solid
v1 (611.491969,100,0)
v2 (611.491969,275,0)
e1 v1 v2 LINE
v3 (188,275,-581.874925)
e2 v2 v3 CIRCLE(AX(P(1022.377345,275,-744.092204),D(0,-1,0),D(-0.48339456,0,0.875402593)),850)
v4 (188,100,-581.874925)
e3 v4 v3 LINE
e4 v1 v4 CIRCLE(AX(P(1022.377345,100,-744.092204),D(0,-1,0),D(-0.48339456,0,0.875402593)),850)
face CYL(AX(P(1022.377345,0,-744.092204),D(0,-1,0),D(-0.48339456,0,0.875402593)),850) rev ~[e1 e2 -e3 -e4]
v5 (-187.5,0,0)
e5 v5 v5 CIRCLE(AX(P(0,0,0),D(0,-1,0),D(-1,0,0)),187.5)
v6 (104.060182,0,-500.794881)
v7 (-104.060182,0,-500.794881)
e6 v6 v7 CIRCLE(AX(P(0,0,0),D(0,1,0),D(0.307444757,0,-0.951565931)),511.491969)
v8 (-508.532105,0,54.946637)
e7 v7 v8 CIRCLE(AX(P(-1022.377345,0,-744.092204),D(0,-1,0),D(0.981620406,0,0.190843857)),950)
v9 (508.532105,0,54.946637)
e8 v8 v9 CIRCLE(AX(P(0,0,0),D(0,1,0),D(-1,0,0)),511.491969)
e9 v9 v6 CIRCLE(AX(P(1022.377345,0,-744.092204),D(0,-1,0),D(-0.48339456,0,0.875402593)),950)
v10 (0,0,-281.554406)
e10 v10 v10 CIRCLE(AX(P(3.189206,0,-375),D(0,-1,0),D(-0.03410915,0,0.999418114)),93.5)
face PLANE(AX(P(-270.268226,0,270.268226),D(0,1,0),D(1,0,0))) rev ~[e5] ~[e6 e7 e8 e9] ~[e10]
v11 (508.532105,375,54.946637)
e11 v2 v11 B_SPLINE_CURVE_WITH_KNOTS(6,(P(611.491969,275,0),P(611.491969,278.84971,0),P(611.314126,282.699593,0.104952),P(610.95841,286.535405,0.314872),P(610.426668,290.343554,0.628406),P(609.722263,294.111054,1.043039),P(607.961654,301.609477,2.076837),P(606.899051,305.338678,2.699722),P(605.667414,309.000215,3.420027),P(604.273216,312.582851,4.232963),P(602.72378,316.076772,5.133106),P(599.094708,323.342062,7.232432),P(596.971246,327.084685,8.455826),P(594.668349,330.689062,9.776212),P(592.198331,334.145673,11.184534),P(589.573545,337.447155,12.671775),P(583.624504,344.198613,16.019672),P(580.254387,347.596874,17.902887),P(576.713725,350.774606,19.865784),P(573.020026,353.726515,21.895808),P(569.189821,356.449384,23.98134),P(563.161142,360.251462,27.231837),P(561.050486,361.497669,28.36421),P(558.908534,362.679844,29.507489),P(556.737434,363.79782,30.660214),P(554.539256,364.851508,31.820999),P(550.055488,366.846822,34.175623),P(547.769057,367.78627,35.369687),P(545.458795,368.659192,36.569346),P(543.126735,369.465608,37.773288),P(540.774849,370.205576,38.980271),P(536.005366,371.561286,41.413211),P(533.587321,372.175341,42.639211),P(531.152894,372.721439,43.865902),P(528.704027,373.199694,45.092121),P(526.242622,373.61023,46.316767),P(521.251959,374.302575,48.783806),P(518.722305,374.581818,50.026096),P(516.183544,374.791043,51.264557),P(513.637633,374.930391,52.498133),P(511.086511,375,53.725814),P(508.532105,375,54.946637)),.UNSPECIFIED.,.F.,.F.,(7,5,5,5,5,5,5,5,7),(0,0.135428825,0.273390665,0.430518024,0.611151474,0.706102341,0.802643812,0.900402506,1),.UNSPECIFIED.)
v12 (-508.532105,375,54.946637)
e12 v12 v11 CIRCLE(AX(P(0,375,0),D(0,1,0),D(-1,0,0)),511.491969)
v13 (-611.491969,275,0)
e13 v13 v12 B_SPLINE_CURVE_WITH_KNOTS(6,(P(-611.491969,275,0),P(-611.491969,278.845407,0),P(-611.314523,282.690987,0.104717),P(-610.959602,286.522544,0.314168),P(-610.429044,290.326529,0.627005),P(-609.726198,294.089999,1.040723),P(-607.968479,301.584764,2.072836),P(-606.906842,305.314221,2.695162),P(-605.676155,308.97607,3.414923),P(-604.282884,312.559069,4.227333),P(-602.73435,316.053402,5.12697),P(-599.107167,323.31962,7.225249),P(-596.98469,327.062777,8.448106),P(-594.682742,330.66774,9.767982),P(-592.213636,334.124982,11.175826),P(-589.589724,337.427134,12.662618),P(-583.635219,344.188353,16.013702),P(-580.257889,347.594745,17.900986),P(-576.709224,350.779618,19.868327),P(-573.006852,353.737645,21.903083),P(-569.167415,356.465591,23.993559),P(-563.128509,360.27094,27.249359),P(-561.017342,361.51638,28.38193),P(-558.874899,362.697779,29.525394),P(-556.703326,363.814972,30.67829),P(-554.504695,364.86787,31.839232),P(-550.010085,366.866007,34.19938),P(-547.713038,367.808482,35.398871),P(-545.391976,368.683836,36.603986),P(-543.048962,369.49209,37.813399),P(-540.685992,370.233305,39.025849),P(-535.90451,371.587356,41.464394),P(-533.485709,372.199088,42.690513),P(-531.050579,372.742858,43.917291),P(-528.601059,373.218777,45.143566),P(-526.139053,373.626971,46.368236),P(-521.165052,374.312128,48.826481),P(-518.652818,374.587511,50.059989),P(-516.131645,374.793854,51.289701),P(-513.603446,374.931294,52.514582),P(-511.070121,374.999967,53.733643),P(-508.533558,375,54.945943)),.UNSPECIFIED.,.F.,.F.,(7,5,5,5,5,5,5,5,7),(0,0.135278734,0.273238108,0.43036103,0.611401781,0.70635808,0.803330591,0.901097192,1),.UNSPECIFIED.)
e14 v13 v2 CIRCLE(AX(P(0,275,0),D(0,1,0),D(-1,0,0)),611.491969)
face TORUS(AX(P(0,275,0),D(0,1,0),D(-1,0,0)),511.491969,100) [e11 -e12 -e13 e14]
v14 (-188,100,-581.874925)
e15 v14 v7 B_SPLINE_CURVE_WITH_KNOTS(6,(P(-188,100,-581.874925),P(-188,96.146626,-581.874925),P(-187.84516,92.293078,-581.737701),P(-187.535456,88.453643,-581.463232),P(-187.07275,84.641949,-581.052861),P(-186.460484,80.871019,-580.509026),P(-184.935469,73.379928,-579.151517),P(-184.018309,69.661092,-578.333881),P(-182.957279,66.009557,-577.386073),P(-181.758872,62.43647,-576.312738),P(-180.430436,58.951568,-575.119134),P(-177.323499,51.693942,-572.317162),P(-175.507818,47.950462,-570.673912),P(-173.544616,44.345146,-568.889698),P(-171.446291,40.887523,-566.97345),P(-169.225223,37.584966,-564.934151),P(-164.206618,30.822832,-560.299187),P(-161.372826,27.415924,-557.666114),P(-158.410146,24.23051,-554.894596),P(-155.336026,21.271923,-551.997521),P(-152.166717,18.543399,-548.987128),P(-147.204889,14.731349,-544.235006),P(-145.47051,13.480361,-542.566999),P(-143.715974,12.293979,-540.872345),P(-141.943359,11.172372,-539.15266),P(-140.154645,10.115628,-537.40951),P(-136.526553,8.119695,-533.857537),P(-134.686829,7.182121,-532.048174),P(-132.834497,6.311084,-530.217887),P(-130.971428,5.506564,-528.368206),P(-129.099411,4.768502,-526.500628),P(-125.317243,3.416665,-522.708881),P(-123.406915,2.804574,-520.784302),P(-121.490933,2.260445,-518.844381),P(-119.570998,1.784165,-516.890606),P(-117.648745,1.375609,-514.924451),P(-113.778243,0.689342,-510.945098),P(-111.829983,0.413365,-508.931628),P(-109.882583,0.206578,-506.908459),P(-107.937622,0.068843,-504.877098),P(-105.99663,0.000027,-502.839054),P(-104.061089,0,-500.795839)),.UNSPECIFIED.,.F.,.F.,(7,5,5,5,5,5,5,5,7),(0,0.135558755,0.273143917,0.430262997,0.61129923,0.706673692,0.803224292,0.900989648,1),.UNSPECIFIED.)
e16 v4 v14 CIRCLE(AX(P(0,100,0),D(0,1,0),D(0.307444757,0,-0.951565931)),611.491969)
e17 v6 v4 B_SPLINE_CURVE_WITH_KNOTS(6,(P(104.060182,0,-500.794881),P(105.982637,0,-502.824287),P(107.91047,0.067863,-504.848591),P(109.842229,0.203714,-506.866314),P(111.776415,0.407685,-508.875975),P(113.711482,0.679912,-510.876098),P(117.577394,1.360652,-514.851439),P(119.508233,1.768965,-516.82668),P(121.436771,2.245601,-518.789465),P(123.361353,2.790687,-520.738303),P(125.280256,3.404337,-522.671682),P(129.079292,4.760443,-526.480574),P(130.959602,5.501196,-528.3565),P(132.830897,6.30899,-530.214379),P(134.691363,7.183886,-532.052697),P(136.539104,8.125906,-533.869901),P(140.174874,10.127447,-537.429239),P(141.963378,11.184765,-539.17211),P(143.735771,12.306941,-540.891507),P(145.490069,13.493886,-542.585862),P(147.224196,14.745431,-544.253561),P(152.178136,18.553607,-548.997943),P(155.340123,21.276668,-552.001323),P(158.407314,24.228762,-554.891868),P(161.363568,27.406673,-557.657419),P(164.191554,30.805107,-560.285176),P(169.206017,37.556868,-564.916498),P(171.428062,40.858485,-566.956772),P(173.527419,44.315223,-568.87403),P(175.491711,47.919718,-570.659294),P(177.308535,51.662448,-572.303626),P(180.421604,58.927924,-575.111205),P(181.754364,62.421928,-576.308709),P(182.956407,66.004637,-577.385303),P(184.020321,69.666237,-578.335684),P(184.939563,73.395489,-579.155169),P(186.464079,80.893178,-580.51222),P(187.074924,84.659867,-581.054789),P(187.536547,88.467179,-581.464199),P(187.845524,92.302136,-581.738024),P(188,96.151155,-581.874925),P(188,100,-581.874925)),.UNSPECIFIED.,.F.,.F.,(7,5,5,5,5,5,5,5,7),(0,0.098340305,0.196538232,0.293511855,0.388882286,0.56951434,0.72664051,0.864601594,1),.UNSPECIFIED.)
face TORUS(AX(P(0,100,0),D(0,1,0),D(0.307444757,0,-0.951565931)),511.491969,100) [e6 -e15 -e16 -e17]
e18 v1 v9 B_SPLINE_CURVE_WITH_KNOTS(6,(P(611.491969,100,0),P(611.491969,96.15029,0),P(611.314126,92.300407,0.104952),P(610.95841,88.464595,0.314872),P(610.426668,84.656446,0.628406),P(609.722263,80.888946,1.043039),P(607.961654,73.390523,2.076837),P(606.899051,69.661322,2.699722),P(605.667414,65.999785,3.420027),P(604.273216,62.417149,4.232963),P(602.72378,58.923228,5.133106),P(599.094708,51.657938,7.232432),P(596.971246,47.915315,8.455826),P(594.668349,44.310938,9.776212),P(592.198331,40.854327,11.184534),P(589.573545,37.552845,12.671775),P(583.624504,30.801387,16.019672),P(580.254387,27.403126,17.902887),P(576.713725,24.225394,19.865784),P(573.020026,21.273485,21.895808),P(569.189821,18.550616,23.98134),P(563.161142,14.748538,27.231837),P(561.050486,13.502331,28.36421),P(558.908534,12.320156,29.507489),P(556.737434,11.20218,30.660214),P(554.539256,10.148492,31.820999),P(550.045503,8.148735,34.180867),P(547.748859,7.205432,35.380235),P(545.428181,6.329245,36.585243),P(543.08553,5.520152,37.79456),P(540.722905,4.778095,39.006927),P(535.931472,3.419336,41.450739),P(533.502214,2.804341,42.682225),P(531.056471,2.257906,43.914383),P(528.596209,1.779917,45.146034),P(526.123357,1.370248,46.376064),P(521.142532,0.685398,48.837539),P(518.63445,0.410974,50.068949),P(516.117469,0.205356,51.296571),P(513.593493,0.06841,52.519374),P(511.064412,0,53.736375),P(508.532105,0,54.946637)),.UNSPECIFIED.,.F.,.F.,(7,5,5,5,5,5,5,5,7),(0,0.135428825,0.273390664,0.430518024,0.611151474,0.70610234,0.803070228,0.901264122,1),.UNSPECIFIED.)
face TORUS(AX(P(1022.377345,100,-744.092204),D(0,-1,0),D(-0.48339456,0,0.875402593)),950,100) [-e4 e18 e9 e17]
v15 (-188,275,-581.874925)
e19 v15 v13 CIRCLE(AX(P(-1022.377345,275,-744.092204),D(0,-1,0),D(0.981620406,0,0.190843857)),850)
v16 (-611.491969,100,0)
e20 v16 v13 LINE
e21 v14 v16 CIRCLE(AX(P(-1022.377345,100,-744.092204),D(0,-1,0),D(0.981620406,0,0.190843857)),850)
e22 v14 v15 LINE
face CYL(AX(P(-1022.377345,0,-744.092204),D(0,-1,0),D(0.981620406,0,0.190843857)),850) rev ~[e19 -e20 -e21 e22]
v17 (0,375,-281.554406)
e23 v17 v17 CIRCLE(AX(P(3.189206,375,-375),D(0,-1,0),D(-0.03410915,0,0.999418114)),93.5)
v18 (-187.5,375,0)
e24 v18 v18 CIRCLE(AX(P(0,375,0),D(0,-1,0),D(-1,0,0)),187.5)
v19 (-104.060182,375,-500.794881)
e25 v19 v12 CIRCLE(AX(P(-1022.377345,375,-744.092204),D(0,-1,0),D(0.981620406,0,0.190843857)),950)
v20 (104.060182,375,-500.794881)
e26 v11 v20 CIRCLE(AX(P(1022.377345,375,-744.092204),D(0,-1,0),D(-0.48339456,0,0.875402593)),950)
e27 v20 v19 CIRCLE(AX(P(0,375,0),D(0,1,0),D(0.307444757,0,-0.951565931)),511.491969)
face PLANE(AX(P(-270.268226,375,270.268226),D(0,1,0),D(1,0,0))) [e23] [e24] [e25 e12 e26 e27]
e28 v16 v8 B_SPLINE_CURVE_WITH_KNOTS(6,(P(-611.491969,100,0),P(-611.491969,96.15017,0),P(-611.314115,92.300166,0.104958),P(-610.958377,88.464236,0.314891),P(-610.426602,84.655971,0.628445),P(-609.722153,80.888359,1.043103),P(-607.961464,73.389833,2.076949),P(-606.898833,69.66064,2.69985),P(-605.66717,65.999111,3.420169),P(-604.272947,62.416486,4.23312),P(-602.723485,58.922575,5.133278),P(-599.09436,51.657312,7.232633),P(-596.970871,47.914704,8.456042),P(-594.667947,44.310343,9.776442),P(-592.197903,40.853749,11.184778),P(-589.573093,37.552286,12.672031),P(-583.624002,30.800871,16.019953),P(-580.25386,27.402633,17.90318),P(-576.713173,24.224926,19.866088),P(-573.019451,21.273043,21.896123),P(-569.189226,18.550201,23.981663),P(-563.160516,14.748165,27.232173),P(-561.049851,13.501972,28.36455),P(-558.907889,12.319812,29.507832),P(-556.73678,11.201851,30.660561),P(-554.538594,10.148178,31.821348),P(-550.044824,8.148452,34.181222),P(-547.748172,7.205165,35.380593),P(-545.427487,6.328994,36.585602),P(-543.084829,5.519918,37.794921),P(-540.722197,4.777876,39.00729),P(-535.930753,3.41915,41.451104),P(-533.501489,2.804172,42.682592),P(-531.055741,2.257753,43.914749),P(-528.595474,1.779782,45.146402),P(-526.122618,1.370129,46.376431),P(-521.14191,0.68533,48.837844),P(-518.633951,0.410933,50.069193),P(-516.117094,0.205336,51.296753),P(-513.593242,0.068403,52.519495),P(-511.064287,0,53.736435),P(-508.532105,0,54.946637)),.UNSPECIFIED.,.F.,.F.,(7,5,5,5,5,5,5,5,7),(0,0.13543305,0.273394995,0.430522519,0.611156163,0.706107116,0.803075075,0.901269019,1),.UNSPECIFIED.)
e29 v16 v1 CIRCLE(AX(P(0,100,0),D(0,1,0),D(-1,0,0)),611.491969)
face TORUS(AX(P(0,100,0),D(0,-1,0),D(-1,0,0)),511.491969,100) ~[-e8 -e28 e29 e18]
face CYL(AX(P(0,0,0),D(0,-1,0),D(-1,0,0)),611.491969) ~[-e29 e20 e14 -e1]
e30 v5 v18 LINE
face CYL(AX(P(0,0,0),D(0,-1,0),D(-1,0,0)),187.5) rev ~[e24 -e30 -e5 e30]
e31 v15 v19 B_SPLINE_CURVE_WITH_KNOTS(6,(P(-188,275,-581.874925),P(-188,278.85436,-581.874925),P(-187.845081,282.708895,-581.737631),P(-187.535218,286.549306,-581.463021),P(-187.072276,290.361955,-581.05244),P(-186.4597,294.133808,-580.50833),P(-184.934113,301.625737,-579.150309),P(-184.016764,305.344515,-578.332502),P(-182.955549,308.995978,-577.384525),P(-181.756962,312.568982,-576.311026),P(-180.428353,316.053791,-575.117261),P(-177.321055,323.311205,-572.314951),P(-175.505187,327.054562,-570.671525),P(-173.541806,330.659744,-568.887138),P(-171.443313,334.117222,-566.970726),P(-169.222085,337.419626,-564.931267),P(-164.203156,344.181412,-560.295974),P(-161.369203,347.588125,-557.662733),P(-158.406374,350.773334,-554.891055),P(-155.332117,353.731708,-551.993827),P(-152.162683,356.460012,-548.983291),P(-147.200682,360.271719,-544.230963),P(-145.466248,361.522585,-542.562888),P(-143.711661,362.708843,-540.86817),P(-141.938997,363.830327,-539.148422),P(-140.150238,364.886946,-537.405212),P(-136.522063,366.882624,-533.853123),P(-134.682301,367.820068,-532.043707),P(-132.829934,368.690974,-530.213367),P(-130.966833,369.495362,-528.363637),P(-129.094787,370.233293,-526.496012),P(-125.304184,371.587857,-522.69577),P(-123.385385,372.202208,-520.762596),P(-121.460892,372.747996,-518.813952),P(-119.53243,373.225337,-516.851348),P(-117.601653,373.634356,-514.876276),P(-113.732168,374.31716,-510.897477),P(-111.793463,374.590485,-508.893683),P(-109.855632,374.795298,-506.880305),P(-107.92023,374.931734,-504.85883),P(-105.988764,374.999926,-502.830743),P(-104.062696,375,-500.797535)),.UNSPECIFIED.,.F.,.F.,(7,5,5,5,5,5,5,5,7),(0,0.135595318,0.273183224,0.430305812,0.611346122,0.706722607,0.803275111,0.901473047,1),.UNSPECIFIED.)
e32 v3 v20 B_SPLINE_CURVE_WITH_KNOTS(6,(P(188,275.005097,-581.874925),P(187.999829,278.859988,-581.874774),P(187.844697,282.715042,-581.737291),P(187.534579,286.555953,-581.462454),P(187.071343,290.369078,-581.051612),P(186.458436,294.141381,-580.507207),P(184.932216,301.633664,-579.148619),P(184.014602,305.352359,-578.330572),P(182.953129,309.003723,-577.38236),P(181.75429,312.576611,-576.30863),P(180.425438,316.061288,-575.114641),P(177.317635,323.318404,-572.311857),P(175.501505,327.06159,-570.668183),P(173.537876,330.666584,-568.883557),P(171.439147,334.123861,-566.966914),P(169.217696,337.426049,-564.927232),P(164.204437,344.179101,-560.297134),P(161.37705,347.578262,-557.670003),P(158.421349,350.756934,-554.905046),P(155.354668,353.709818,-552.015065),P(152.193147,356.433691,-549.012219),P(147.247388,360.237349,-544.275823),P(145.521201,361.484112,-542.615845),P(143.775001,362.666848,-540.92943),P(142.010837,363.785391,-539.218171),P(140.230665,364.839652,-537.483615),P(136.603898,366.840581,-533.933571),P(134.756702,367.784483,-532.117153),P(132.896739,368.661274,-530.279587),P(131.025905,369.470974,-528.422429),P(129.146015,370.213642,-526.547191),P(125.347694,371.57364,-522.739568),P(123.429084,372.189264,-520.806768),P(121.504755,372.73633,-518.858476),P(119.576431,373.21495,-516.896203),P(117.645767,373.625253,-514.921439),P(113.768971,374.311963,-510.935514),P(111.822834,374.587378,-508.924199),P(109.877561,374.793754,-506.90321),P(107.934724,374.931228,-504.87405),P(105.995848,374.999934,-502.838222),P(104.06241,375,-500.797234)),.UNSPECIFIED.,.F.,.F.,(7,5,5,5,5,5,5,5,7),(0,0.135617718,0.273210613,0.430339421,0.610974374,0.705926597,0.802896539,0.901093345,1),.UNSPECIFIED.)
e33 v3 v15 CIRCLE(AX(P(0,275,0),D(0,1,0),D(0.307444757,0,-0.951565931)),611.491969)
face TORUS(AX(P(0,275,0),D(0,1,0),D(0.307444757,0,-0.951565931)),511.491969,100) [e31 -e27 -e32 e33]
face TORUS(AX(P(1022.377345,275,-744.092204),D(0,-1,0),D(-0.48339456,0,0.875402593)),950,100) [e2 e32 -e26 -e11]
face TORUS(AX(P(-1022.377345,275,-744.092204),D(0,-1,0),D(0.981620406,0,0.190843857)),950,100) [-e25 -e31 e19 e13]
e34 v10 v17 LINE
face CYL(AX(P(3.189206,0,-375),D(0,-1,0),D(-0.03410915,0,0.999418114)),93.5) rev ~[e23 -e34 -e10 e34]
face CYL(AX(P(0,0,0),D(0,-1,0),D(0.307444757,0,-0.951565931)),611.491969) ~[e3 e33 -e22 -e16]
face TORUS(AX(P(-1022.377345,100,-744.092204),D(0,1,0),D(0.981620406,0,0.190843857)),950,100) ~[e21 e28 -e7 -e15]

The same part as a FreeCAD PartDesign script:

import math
import FreeCAD as App
import Part
import Sketcher
from FreeCAD import Vector
Q = App.Units.Quantity


def edges_at(feature, points):
    """Names of the edges that pass closest to the given points."""
    edges = feature.Shape.Edges
    near = lambda p: min(range(len(edges)), key=lambda i: edges[i].distToShape(Part.Vertex(*p))[0])
    return sorted({f"Edge{near(p) + 1}" for p in points})

doc = App.newDocument("Part")
params = doc.addObject("Spreadsheet::Sheet", "Params")
for row, (alias, value) in enumerate([
    ("sketch1_diameter", "187 mm"),
    ("sketch1_diameter2", "375 mm"),
    ("sketch1_radius", "850 mm"),
    ("pad1_length", "375 mm"),
    ("fillet_radius", "100 mm"),
    ("fillet2_radius", "100 mm"),
], start=1):
    params.set(f"A{row}", alias)
    params.set(f"B{row}", "=" + value)
    params.setAlias(f"B{row}", alias)

body = doc.addObject("PartDesign::Body", "Body")

# Sketch on XZ plane
sketch1 = body.newObject("Sketcher::SketchObject", "Sketch")
sketch1.AttachmentSupport = (doc.getObject("XZ_Plane"), [""])
sketch1.MapMode = "FlatFace"
sketch1.addGeometry([
    Part.ArcOfCircle(Part.Circle(Vector(0, 0, 0), Vector(0, 0, 1), 611), math.radians(0), math.radians(180)),  # 0
    Part.ArcOfCircle(Part.Circle(Vector(1022, -744, 0), Vector(0, 0, 1), 850), math.radians(119), math.radians(169)),  # 1
    Part.ArcOfCircle(Part.Circle(Vector(0, 0, 0), Vector(0, 0, 1), 611), math.radians(-108), math.radians(-72)),  # 2
    Part.ArcOfCircle(Part.Circle(Vector(-1022, -744, 0), Vector(0, 0, 1), 850), math.radians(11), math.radians(61)),  # 3
    Part.Circle(Vector(3, -375, 0), Vector(0, 0, 1), 94),  # 4
    Part.Circle(Vector(0, 0, 0), Vector(0, 0, 1), 188),  # 5
], False)
sketch1.addConstraint([
    Sketcher.Constraint("Coincident", 0, 1, 1, 1),
    Sketcher.Constraint("Coincident", 1, 2, 2, 2),
    Sketcher.Constraint("Coincident", 2, 1, 3, 1),
    Sketcher.Constraint("Coincident", 3, 2, 0, 2),
    Sketcher.Constraint("Coincident", 0, 3, -1, 1),
    Sketcher.Constraint("Coincident", 2, 3, -1, 1),
    Sketcher.Constraint("Coincident", 5, 3, -1, 1),
    Sketcher.Constraint("Equal", 0, 2),
    Sketcher.Constraint("Equal", 1, 3),
    Sketcher.Constraint("Symmetric", 1, 3, 3, 3, -2),
    Sketcher.Constraint("PointOnObject", 3, 2, -1),
    Sketcher.Constraint("Diameter", 4, Q("187 mm")),
    Sketcher.Constraint("Diameter", 5, Q("375 mm")),
    Sketcher.Constraint("Radius", 1, Q("850 mm")),
    Sketcher.Constraint("DistanceY", 4, 3, -1, 1, Q("375 mm")),
    Sketcher.Constraint("DistanceX", -1, 1, 1, 2, Q("188 mm")),
    Sketcher.Constraint("Radius", 0, Q("611.491969 mm")),
    Sketcher.Constraint("DistanceX", 4, 3, 1, 3, Q("1019.18814 mm")),
])
sketch1.setExpression("Constraints[11]", "Params.sketch1_diameter")
sketch1.setExpression("Constraints[12]", "Params.sketch1_diameter2")
sketch1.setExpression("Constraints[13]", "Params.sketch1_radius")
pad1 = body.newObject("PartDesign::Pad", "Pad")
pad1.Profile = sketch1
pad1.setExpression("Length", "Params.pad1_length")
pad1.Reversed = True
doc.recompute()

fillet = body.newObject("PartDesign::Fillet", "Fillet")
fillet.Base = (pad1, edges_at(pad1, [
    (-335.126, 375, -243.907),
    (0, 375, 611.492),
    (335.126, 375, -243.907),
    (0, 375, -611.492),
]))
fillet.setExpression("Radius", "Params.fillet_radius")
doc.recompute()

fillet2 = body.newObject("PartDesign::Fillet", "Fillet001")
fillet2.Base = (fillet, edges_at(fillet, [
    (0, 0, 611.492),
    (-335.126, 0, -243.907),
    (0, 0, -611.492),
    (335.126, 0, -243.907),
]))
fillet2.setExpression("Radius", "Params.fillet2_radius")

doc.recompute()
